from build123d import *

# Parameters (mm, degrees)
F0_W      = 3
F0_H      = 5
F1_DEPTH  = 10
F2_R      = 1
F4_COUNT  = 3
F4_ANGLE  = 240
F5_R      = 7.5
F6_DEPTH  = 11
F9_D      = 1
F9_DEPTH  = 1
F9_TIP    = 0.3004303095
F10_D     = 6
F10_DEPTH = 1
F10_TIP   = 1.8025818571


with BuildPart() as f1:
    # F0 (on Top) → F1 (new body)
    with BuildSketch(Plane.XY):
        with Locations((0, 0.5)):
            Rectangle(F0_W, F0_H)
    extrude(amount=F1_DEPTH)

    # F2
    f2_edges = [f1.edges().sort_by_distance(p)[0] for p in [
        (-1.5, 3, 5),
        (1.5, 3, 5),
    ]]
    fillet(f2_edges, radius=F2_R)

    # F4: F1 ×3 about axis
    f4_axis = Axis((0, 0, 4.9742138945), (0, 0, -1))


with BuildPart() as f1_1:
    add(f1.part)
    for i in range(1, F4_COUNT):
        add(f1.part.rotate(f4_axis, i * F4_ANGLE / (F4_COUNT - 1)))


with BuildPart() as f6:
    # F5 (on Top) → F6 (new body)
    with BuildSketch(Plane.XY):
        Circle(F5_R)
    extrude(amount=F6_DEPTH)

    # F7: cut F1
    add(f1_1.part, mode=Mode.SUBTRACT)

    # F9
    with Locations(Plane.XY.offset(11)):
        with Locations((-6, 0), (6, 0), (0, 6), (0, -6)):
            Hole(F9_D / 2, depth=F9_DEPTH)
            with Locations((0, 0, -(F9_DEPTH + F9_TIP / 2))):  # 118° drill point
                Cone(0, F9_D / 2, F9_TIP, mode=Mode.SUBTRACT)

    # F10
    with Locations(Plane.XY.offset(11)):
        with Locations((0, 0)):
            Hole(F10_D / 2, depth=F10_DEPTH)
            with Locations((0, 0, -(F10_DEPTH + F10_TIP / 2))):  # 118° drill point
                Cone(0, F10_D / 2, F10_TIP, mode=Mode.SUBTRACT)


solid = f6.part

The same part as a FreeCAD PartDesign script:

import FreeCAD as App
import Part
import Sketcher
from FreeCAD import Vector


def edges_at(feature, points):
    """Names of the edges that pass closest to the given points."""
    edges = feature.Shape.Edges
    near = lambda p: min(range(len(edges)), key=lambda i: edges[i].distToShape(Part.Vertex(*p))[0])
    return sorted({f"Edge{near(p) + 1}" for p in points})

doc = App.newDocument("Part")
params = doc.addObject("Spreadsheet::Sheet", "Params")
for row, (alias, value) in enumerate([
    ("sketch1_width", "3 mm"),
    ("sketch1_height", "5 mm"),
    ("pad1_length", "10 mm"),
    ("fillet_radius", "1 mm"),
    ("sketch2_diameter", "15 mm"),
    ("pad2_length", "11 mm"),
    ("sketch3_diameter", "1 mm"),
    ("hole_diameter", "1 mm"),
    ("hole_depth", "1 mm"),
    ("sketch4_diameter", "6 mm"),
    ("hole2_diameter", "6 mm"),
    ("hole2_depth", "1 mm"),
], start=1):
    params.set(f"A{row}", alias)
    params.set(f"B{row}", "=" + value)
    params.setAlias(f"B{row}", alias)

body = doc.addObject("PartDesign::Body", "Body")

sketch1 = body.newObject("Sketcher::SketchObject", "Sketch")
sketch1.AttachmentSupport = (doc.getObject("XY_Plane"), [""])
sketch1.MapMode = "FlatFace"
sketch1.addGeometry([
    Part.LineSegment(Vector(-1.5, 3, 0), Vector(-1.5, -2, 0)),
    Part.LineSegment(Vector(-1.5, -2, 0), Vector(1.5, -2, 0)),
    Part.LineSegment(Vector(1.5, -2, 0), Vector(1.5, 3, 0)),
    Part.LineSegment(Vector(1.5, 3, 0), Vector(-1.5, 3, 0)),
], False)
sketch1.addConstraint([
    Sketcher.Constraint("Coincident", 0, 2, 1, 1),
    Sketcher.Constraint("Coincident", 1, 2, 2, 1),
    Sketcher.Constraint("Coincident", 2, 2, 3, 1),
    Sketcher.Constraint("Coincident", 3, 2, 0, 1),
    Sketcher.Constraint("Vertical", 0),
    Sketcher.Constraint("Horizontal", 1),
    Sketcher.Constraint("Vertical", 2),
    Sketcher.Constraint("Horizontal", 3),
    Sketcher.Constraint("DistanceX", 1, 1, 1, 2, 3.0),
    Sketcher.Constraint("DistanceY", 0, 2, 0, 1, 5.0),
    Sketcher.Constraint("DistanceY", 0, 2, -1, 1, 2.0),
    Sketcher.Constraint("DistanceX", 0, 2, -1, 1, 1.5),
])
sketch1.setExpression("Constraints[8]", "Params.sketch1_width")
sketch1.setExpression("Constraints[9]", "Params.sketch1_height")
pad1 = body.newObject("PartDesign::Pad", "Pad")
pad1.Profile = sketch1
pad1.setExpression("Length", "Params.pad1_length")
doc.recompute()

fillet = body.newObject("PartDesign::Fillet", "Fillet")
fillet.Base = (pad1, edges_at(pad1, [(-1.5, 3, 5), (1.5, 3, 5)]))
fillet.setExpression("Radius", "Params.fillet_radius")
body2 = doc.addObject("PartDesign::Body", "Body001")
doc.recompute()

body2.BaseFeature = body
doc.recompute()

body3 = doc.addObject("PartDesign::Body", "Body002")
body3.BaseFeature = body
body3.Placement = App.Placement(Vector(0, 0, 0), App.Rotation(Vector(0, 0, -1), 120))
boolean = body2.newObject("PartDesign::Boolean", "Boolean")
boolean.Type = "Fuse"
boolean.addObjects([body3])
doc.recompute()

body.Placement = App.Placement(Vector(0, 0, 0), App.Rotation(Vector(0, 0, -1), 240))
boolean2 = body2.newObject("PartDesign::Boolean", "Boolean001")
boolean2.Type = "Fuse"
boolean2.addObjects([body])
body4 = doc.addObject("PartDesign::Body", "Body003")

sketch2 = body4.newObject("Sketcher::SketchObject", "Sketch001")
sketch2.AttachmentSupport = (doc.getObject("XY_Plane003"), [""])
sketch2.MapMode = "FlatFace"
sketch2.addGeometry(Part.Circle(Vector(0, 0, 0), Vector(0, 0, 1), 8), False)
sketch2.addConstraint([
    Sketcher.Constraint("Coincident", 0, 3, -1, 1),
    Sketcher.Constraint("Diameter", 0, 15.0),
])
sketch2.setExpression("Constraints[1]", "Params.sketch2_diameter")
pad2 = body4.newObject("PartDesign::Pad", "Pad001")
pad2.Profile = sketch2
pad2.setExpression("Length", "Params.pad2_length")
doc.recompute()

boolean3 = body4.newObject("PartDesign::Boolean", "Boolean002")
boolean3.Type = "Cut"
boolean3.addObjects([body2])

sketch3 = body4.newObject("Sketcher::SketchObject", "Sketch002")
sketch3.AttachmentSupport = (doc.getObject("XY_Plane003"), [""])
sketch3.MapMode = "FlatFace"
sketch3.AttachmentOffset = App.Placement(Vector(0, 0, 11), App.Rotation())
sketch3.addGeometry([
    Part.Circle(Vector(-6, 0, 0), Vector(0, 0, 1), 0.5),
    Part.Circle(Vector(6, 0, 0), Vector(0, 0, 1), 0.5),
    Part.Circle(Vector(0, 6, 0), Vector(0, 0, 1), 0.5),
    Part.Circle(Vector(0, -6, 0), Vector(0, 0, 1), 0.5),
], False)
sketch3.addConstraint([
    Sketcher.Constraint("Equal", 0, 1),
    Sketcher.Constraint("Equal", 1, 2),
    Sketcher.Constraint("Equal", 2, 3),
    Sketcher.Constraint("Symmetric", 0, 3, 1, 3, -1, 1),
    Sketcher.Constraint("Symmetric", 2, 3, 3, 3, -1, 1),
    Sketcher.Constraint("PointOnObject", 0, 3, -1),
    Sketcher.Constraint("PointOnObject", 2, 3, -2),
    Sketcher.Constraint("Diameter", 0, 1.0),
    Sketcher.Constraint("DistanceX", 0, 3, -1, 1, 6.0),
    Sketcher.Constraint("DistanceY", -1, 1, 2, 3, 6.0),
])
sketch3.setExpression("Constraints[7]", "Params.sketch3_diameter")
doc.recompute()
hole = body4.newObject("PartDesign::Hole", "Hole")
hole.Profile = sketch3
hole.ThreadType = "None"
hole.setExpression("Diameter", "Params.hole_diameter")
hole.DepthType = "Dimension"
hole.setExpression("Depth", "Params.hole_depth")
hole.DrillPoint = "Angled"
hole.DrillPointAngle = 118

sketch4 = body4.newObject("Sketcher::SketchObject", "Sketch003")
sketch4.AttachmentSupport = (doc.getObject("XY_Plane003"), [""])
sketch4.MapMode = "FlatFace"
sketch4.AttachmentOffset = App.Placement(Vector(0, 0, 11), App.Rotation())
sketch4.addGeometry(Part.Circle(Vector(0, 0, 0), Vector(0, 0, 1), 3), False)
sketch4.addConstraint([
    Sketcher.Constraint("Coincident", 0, 3, -1, 1),
    Sketcher.Constraint("Diameter", 0, 6.0),
])
sketch4.setExpression("Constraints[1]", "Params.sketch4_diameter")
doc.recompute()
hole2 = body4.newObject("PartDesign::Hole", "Hole001")
hole2.Profile = sketch4
hole2.ThreadType = "None"
hole2.setExpression("Diameter", "Params.hole2_diameter")
hole2.DepthType = "Dimension"
hole2.setExpression("Depth", "Params.hole2_depth")
hole2.DrillPoint = "Angled"
hole2.DrillPointAngle = 118

doc.recompute()
